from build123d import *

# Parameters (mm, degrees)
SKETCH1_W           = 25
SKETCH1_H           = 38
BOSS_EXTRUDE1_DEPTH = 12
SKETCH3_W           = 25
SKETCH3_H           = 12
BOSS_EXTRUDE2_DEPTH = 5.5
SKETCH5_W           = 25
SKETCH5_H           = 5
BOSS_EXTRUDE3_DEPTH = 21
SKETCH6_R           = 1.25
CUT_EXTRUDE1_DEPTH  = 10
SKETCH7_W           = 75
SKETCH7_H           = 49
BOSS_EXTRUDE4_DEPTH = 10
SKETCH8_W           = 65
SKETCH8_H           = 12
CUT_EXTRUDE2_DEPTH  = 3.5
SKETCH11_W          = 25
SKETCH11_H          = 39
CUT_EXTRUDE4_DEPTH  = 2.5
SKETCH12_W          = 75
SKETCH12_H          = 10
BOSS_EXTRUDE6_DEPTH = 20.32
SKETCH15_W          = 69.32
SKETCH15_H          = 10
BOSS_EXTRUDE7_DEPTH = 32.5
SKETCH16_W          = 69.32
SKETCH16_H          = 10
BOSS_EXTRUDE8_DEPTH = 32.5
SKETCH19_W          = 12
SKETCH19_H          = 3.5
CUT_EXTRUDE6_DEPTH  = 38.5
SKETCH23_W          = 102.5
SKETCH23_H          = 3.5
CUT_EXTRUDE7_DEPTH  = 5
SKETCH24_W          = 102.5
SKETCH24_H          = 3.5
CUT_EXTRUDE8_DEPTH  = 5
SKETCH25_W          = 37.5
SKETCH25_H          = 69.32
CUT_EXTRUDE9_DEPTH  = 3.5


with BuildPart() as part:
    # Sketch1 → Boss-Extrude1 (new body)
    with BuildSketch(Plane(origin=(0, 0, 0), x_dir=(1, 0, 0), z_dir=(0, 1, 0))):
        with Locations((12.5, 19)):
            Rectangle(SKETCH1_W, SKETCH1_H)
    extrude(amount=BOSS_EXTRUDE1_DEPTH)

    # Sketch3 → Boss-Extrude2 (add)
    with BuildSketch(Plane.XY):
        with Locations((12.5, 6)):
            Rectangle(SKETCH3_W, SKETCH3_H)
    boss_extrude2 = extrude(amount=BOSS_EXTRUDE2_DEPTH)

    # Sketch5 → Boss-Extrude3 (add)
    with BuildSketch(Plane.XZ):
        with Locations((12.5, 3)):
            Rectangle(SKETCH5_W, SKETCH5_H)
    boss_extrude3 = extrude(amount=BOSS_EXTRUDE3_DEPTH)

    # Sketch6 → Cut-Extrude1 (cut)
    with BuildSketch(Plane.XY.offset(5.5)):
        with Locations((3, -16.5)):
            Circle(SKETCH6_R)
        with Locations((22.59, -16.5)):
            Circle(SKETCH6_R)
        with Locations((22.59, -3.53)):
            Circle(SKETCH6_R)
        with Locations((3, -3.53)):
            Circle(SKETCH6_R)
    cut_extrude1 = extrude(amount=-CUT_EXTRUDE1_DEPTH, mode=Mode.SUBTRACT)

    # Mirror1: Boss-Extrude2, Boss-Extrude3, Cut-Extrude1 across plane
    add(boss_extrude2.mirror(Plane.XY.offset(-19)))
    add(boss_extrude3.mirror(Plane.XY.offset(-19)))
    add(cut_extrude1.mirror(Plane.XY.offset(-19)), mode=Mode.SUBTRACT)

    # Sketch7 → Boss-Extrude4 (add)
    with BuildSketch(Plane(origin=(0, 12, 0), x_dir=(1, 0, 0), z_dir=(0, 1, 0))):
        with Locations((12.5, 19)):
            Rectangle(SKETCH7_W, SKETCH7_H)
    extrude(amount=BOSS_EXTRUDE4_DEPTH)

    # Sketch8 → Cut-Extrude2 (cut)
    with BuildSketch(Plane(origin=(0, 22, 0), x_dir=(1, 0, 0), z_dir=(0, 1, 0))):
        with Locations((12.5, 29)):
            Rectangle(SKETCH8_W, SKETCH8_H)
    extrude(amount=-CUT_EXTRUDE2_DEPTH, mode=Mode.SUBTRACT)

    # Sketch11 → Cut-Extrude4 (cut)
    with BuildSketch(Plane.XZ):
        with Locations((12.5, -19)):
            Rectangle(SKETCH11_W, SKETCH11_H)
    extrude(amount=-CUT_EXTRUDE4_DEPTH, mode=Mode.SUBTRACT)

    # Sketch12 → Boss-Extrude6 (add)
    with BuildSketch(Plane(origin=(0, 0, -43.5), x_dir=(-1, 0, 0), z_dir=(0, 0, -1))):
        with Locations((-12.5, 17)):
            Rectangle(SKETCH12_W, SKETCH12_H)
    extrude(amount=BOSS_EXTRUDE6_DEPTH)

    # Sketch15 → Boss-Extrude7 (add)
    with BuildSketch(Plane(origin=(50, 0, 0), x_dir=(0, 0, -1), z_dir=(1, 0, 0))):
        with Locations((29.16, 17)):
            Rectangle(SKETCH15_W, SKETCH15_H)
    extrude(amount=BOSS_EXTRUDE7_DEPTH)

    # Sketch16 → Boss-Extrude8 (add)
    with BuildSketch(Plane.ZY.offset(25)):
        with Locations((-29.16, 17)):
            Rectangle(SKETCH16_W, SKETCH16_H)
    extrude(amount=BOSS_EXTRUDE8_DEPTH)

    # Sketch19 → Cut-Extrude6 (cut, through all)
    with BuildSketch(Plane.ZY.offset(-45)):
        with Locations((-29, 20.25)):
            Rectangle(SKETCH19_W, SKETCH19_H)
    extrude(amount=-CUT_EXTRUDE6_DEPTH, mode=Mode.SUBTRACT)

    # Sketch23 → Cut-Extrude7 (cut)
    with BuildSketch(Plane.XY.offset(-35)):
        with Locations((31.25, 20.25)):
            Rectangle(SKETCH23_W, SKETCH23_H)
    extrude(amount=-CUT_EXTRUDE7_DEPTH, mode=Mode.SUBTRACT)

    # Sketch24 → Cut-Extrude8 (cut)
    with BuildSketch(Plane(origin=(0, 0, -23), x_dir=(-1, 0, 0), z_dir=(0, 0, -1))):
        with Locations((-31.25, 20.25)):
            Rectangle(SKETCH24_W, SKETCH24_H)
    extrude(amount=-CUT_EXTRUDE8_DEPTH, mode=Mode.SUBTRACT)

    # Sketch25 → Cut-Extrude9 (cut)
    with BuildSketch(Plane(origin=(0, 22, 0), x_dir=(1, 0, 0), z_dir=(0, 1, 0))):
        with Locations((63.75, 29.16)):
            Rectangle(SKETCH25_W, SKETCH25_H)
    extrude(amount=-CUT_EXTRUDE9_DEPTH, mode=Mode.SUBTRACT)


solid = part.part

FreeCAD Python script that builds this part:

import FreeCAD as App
import Part
import Sketcher
Q = App.Units.Quantity


def add_polygon(sketch, points):
    """Adds a closed chain of lines whose ends are joined by coincident constraints."""
    first, n = sketch.GeometryCount, len(points)
    for a, b in zip(points, points[1:] + points[:1]):
        sketch.addGeometry(Part.LineSegment(App.Vector(*a, 0), App.Vector(*b, 0)), False)
    for i in range(n):
        sketch.addConstraint(Sketcher.Constraint("Coincident", first + i, 2, first + (i + 1) % n, 1))

doc = App.newDocument("Part")
body = doc.addObject("PartDesign::Body", "Body")

sketch1 = doc.addObject("Sketcher::SketchObject", "Sketch")
body.addObject(sketch1)
sketch1.AttachmentSupport = (doc.XZ_Plane, [""])
sketch1.MapMode = "FlatFace"
add_polygon(sketch1, [(0, -38), (0, 0), (25, 0), (25, -38)])
sketch1.addConstraint(Sketcher.Constraint("Vertical", 0))
sketch1.addConstraint(Sketcher.Constraint("Horizontal", 1))
sketch1.addConstraint(Sketcher.Constraint("Vertical", 2))
sketch1.addConstraint(Sketcher.Constraint("Horizontal", 3))
sketch1.addConstraint(Sketcher.Constraint("Coincident", 0, 2, -1, 1))
sketch1.addConstraint(Sketcher.Constraint("DistanceX", 1, 1, 1, 2, Q("25 mm")))
sketch1.addConstraint(Sketcher.Constraint("DistanceY", 0, 1, 0, 2, Q("38 mm")))
pad1 = doc.addObject("PartDesign::Pad", "Pad")
body.addObject(pad1)
pad1.Profile = sketch1
pad1.Length = 12
pad1.Reversed = True

sketch2 = doc.addObject("Sketcher::SketchObject", "Sketch001")
body.addObject(sketch2)
sketch2.AttachmentSupport = (doc.XY_Plane, [""])
sketch2.MapMode = "FlatFace"
add_polygon(sketch2, [(0, 12), (0, 0), (25, 0), (25, 12)])
sketch2.addConstraint(Sketcher.Constraint("Vertical", 0))
sketch2.addConstraint(Sketcher.Constraint("Horizontal", 1))
sketch2.addConstraint(Sketcher.Constraint("Vertical", 2))
sketch2.addConstraint(Sketcher.Constraint("Horizontal", 3))
sketch2.addConstraint(Sketcher.Constraint("Coincident", 0, 2, -1, 1))
sketch2.addConstraint(Sketcher.Constraint("DistanceX", 1, 1, 1, 2, Q("25 mm")))
sketch2.addConstraint(Sketcher.Constraint("DistanceY", 0, 2, 0, 1, Q("12 mm")))
pad2 = doc.addObject("PartDesign::Pad", "Pad001")
body.addObject(pad2)
pad2.Profile = sketch2
pad2.Length = 5.5

sketch3 = doc.addObject("Sketcher::SketchObject", "Sketch002")
body.addObject(sketch3)
sketch3.AttachmentSupport = (doc.XZ_Plane, [""])
sketch3.MapMode = "FlatFace"
add_polygon(sketch3, [(0, 6), (0, 0), (25, 0), (25, 6)])
sketch3.addConstraint(Sketcher.Constraint("Vertical", 0))
sketch3.addConstraint(Sketcher.Constraint("Horizontal", 1))
sketch3.addConstraint(Sketcher.Constraint("Vertical", 2))
sketch3.addConstraint(Sketcher.Constraint("Horizontal", 3))
sketch3.addConstraint(Sketcher.Constraint("PointOnObject", 0, 2, -2))
sketch3.addConstraint(Sketcher.Constraint("DistanceX", 1, 1, 1, 2, Q("25 mm")))
sketch3.addConstraint(Sketcher.Constraint("DistanceY", 0, 2, 0, 1, Q("5 mm")))
sketch3.addConstraint(Sketcher.Constraint("DistanceY", -1, 1, 0, 2, Q("0.5 mm")))
pad3 = doc.addObject("PartDesign::Pad", "Pad002")
body.addObject(pad3)
pad3.Profile = sketch3
pad3.Length = 21

sketch4 = doc.addObject("Sketcher::SketchObject", "Sketch003")
body.addObject(sketch4)
sketch4.AttachmentSupport = (doc.XY_Plane, [""])
sketch4.MapMode = "FlatFace"
sketch4.AttachmentOffset = App.Placement(App.Vector(0, 0, 5.5), App.Rotation())
sketch4.addGeometry(Part.Circle(App.Vector(3, -16.5, 0), App.Vector(0, 0, 1), 1.2), False)
sketch4.addGeometry(Part.Circle(App.Vector(22.6, -16.5, 0), App.Vector(0, 0, 1), 1.2), False)
sketch4.addGeometry(Part.Circle(App.Vector(22.6, -3.5, 0), App.Vector(0, 0, 1), 1.2), False)
sketch4.addGeometry(Part.Circle(App.Vector(3, -3.5, 0), App.Vector(0, 0, 1), 1.2), False)
sketch4.addConstraint(Sketcher.Constraint("Equal", 0, 1))
sketch4.addConstraint(Sketcher.Constraint("Equal", 1, 2))
sketch4.addConstraint(Sketcher.Constraint("Equal", 2, 3))
sketch4.addConstraint(Sketcher.Constraint("Horizontal", 0, 3, 1, 3))
sketch4.addConstraint(Sketcher.Constraint("Horizontal", 2, 3, 3, 3))
sketch4.addConstraint(Sketcher.Constraint("Vertical", 1, 3, 2, 3))
sketch4.addConstraint(Sketcher.Constraint("Vertical", 0, 3, 3, 3))
sketch4.addConstraint(Sketcher.Constraint("Diameter", 0, Q("2.5 mm")))
sketch4.addConstraint(Sketcher.Constraint("DistanceX", -1, 1, 0, 3, Q("3 mm")))
sketch4.addConstraint(Sketcher.Constraint("DistanceY", 0, 3, -1, 1, Q("16.5 mm")))
sketch4.addConstraint(Sketcher.Constraint("DistanceX", -1, 1, 1, 3, Q("22.59 mm")))
sketch4.addConstraint(Sketcher.Constraint("DistanceY", 2, 3, -1, 1, Q("3.53 mm")))
pocket1 = doc.addObject("PartDesign::Pocket", "Pocket")
body.addObject(pocket1)
pocket1.Profile = sketch4
pocket1.Length = 10
doc.recompute()

datumplane = doc.addObject("PartDesign::Plane", "DatumPlane")
body.addObject(datumplane)
datumplane.AttachmentSupport = (doc.XY_Plane, [""])
datumplane.MapMode = "FlatFace"
datumplane.AttachmentOffset = App.Placement(App.Vector(0, 0, -19), App.Rotation())
mirrored = doc.addObject("PartDesign::Mirrored", "Mirrored")
body.addObject(mirrored)
mirrored.Originals = [pad2, pad3, pocket1]
mirrored.MirrorPlane = (datumplane, [""])
body.Tip = mirrored

sketch5 = doc.addObject("Sketcher::SketchObject", "Sketch004")
body.addObject(sketch5)
sketch5.AttachmentSupport = (doc.XZ_Plane, [""])
sketch5.MapMode = "FlatFace"
sketch5.AttachmentOffset = App.Placement(App.Vector(0, 0, -12), App.Rotation())
add_polygon(sketch5, [(-25, -44), (-25, 6), (50, 6), (50, -44)])
sketch5.addConstraint(Sketcher.Constraint("Vertical", 0))
sketch5.addConstraint(Sketcher.Constraint("Horizontal", 1))
sketch5.addConstraint(Sketcher.Constraint("Vertical", 2))
sketch5.addConstraint(Sketcher.Constraint("Horizontal", 3))
sketch5.addConstraint(Sketcher.Constraint("DistanceX", 1, 1, 1, 2, Q("75 mm")))
sketch5.addConstraint(Sketcher.Constraint("DistanceY", 0, 1, 0, 2, Q("49 mm")))
sketch5.addConstraint(Sketcher.Constraint("DistanceX", 0, 2, -1, 1, Q("25 mm")))
sketch5.addConstraint(Sketcher.Constraint("DistanceY", -1, 1, 0, 2, Q("5.5 mm")))
pad4 = doc.addObject("PartDesign::Pad", "Pad003")
body.addObject(pad4)
pad4.Profile = sketch5
pad4.Length = 10
pad4.Reversed = True

sketch6 = doc.addObject("Sketcher::SketchObject", "Sketch005")
body.addObject(sketch6)
sketch6.AttachmentSupport = (doc.XZ_Plane, [""])
sketch6.MapMode = "FlatFace"
sketch6.AttachmentOffset = App.Placement(App.Vector(0, 0, -22), App.Rotation())
add_polygon(sketch6, [(-20, -35), (-20, -23), (45, -23), (45, -35)])
sketch6.addConstraint(Sketcher.Constraint("Vertical", 0))
sketch6.addConstraint(Sketcher.Constraint("Horizontal", 1))
sketch6.addConstraint(Sketcher.Constraint("Vertical", 2))
sketch6.addConstraint(Sketcher.Constraint("Horizontal", 3))
sketch6.addConstraint(Sketcher.Constraint("DistanceX", 1, 1, 1, 2, Q("65 mm")))
sketch6.addConstraint(Sketcher.Constraint("DistanceY", 0, 1, 0, 2, Q("12 mm")))
sketch6.addConstraint(Sketcher.Constraint("DistanceX", 0, 2, -1, 1, Q("20 mm")))
sketch6.addConstraint(Sketcher.Constraint("DistanceY", 0, 2, -1, 1, Q("23 mm")))
pocket2 = doc.addObject("PartDesign::Pocket", "Pocket001")
body.addObject(pocket2)
pocket2.Profile = sketch6
pocket2.Length = 3.5
pocket2.Reversed = True

sketch7 = doc.addObject("Sketcher::SketchObject", "Sketch006")
body.addObject(sketch7)
sketch7.AttachmentSupport = (doc.XZ_Plane, [""])
sketch7.MapMode = "FlatFace"
add_polygon(sketch7, [(0, 0), (0, -38), (25, -38), (25, 0)])
sketch7.addConstraint(Sketcher.Constraint("Vertical", 0))
sketch7.addConstraint(Sketcher.Constraint("Horizontal", 1))
sketch7.addConstraint(Sketcher.Constraint("Vertical", 2))
sketch7.addConstraint(Sketcher.Constraint("Horizontal", 3))
sketch7.addConstraint(Sketcher.Constraint("PointOnObject", 0, 2, -2))
sketch7.addConstraint(Sketcher.Constraint("DistanceX", 1, 1, 1, 2, Q("25 mm")))
sketch7.addConstraint(Sketcher.Constraint("DistanceY", 0, 2, 0, 1, Q("39 mm")))
sketch7.addConstraint(Sketcher.Constraint("DistanceY", 0, 2, -1, 1, Q("38.5 mm")))
pocket3 = doc.addObject("PartDesign::Pocket", "Pocket002")
body.addObject(pocket3)
pocket3.Profile = sketch7
pocket3.Length = 2.5

sketch8 = doc.addObject("Sketcher::SketchObject", "Sketch007")
body.addObject(sketch8)
sketch8.AttachmentSupport = (doc.XY_Plane, [""])
sketch8.MapMode = "FlatFace"
sketch8.AttachmentOffset = App.Placement(App.Vector(0, 0, -43.5), App.Rotation())
add_polygon(sketch8, [(50, 22), (50, 12), (-25, 12), (-25, 22)])
sketch8.addConstraint(Sketcher.Constraint("Vertical", 0))
sketch8.addConstraint(Sketcher.Constraint("Horizontal", 1))
sketch8.addConstraint(Sketcher.Constraint("Vertical", 2))
sketch8.addConstraint(Sketcher.Constraint("Horizontal", 3))
sketch8.addConstraint(Sketcher.Constraint("DistanceX", 1, 2, 1, 1, Q("75 mm")))
sketch8.addConstraint(Sketcher.Constraint("DistanceY", 0, 2, 0, 1, Q("10 mm")))
sketch8.addConstraint(Sketcher.Constraint("DistanceX", -1, 1, 0, 2, Q("50 mm")))
sketch8.addConstraint(Sketcher.Constraint("DistanceY", -1, 1, 0, 2, Q("12 mm")))
pad5 = doc.addObject("PartDesign::Pad", "Pad004")
body.addObject(pad5)
pad5.Profile = sketch8
pad5.Length = 20.32
pad5.Reversed = True

sketch9 = doc.addObject("Sketcher::SketchObject", "Sketch008")
body.addObject(sketch9)
sketch9.AttachmentSupport = (doc.YZ_Plane, [""])
sketch9.MapMode = "FlatFace"
sketch9.AttachmentOffset = App.Placement(App.Vector(0, 0, 50), App.Rotation())
add_polygon(sketch9, [(22, 6), (12, 6), (12, -64), (22, -64)])
sketch9.addConstraint(Sketcher.Constraint("Horizontal", 0))
sketch9.addConstraint(Sketcher.Constraint("Vertical", 1))
sketch9.addConstraint(Sketcher.Constraint("Horizontal", 2))
sketch9.addConstraint(Sketcher.Constraint("Vertical", 3))
sketch9.addConstraint(Sketcher.Constraint("DistanceX", 0, 2, 0, 1, Q("10 mm")))
sketch9.addConstraint(Sketcher.Constraint("DistanceX", -1, 1, 0, 2, Q("12 mm")))
sketch9.addConstraint(Sketcher.Constraint("DistanceY", 1, 2, 1, 1, Q("69.32 mm")))
sketch9.addConstraint(Sketcher.Constraint("DistanceY", -1, 1, 0, 2, Q("5.5 mm")))
pad6 = doc.addObject("PartDesign::Pad", "Pad005")
body.addObject(pad6)
pad6.Profile = sketch9
pad6.Length = 32.5

sketch10 = doc.addObject("Sketcher::SketchObject", "Sketch009")
body.addObject(sketch10)
sketch10.AttachmentSupport = (doc.YZ_Plane, [""])
sketch10.MapMode = "FlatFace"
sketch10.AttachmentOffset = App.Placement(App.Vector(0, 0, -25), App.Rotation())
add_polygon(sketch10, [(22, -64), (12, -64), (12, 6), (22, 6)])
sketch10.addConstraint(Sketcher.Constraint("Horizontal", 0))
sketch10.addConstraint(Sketcher.Constraint("Vertical", 1))
sketch10.addConstraint(Sketcher.Constraint("Horizontal", 2))
sketch10.addConstraint(Sketcher.Constraint("Vertical", 3))
sketch10.addConstraint(Sketcher.Constraint("DistanceX", 0, 2, 0, 1, Q("10 mm")))
sketch10.addConstraint(Sketcher.Constraint("DistanceX", -1, 1, 0, 2, Q("12 mm")))
sketch10.addConstraint(Sketcher.Constraint("DistanceY", 1, 1, 1, 2, Q("69.32 mm")))
sketch10.addConstraint(Sketcher.Constraint("DistanceY", -1, 1, 1, 2, Q("5.5 mm")))
pad7 = doc.addObject("PartDesign::Pad", "Pad006")
body.addObject(pad7)
pad7.Profile = sketch10
pad7.Length = 32.5
pad7.Reversed = True

sketch11 = doc.addObject("Sketcher::SketchObject", "Sketch010")
body.addObject(sketch11)
sketch11.AttachmentSupport = (doc.YZ_Plane, [""])
sketch11.MapMode = "FlatFace"
sketch11.AttachmentOffset = App.Placement(App.Vector(0, 0, 45), App.Rotation())
add_polygon(sketch11, [(22, -35), (18.5, -35), (18.5, -23), (22, -23)])
sketch11.addConstraint(Sketcher.Constraint("Horizontal", 0))
sketch11.addConstraint(Sketcher.Constraint("Vertical", 1))
sketch11.addConstraint(Sketcher.Constraint("Horizontal", 2))
sketch11.addConstraint(Sketcher.Constraint("Vertical", 3))
sketch11.addConstraint(Sketcher.Constraint("DistanceY", 1, 1, 1, 2, Q("12 mm")))
sketch11.addConstraint(Sketcher.Constraint("DistanceX", 0, 2, 0, 1, Q("3.5 mm")))
sketch11.addConstraint(Sketcher.Constraint("DistanceY", 0, 2, -1, 1, Q("35 mm")))
sketch11.addConstraint(Sketcher.Constraint("DistanceX", -1, 1, 2, 2, Q("22 mm")))
pocket4 = doc.addObject("PartDesign::Pocket", "Pocket003")
body.addObject(pocket4)
pocket4.Profile = sketch11
pocket4.Type = "ThroughAll"
pocket4.Reversed = True

sketch12 = doc.addObject("Sketcher::SketchObject", "Sketch011")
body.addObject(sketch12)
sketch12.AttachmentSupport = (doc.XY_Plane, [""])
sketch12.MapMode = "FlatFace"
sketch12.AttachmentOffset = App.Placement(App.Vector(0, 0, -35), App.Rotation())
add_polygon(sketch12, [(-20, 22), (-20, 18.5), (82.5, 18.5), (82.5, 22)])
sketch12.addConstraint(Sketcher.Constraint("Vertical", 0))
sketch12.addConstraint(Sketcher.Constraint("Horizontal", 1))
sketch12.addConstraint(Sketcher.Constraint("Vertical", 2))
sketch12.addConstraint(Sketcher.Constraint("Horizontal", 3))
sketch12.addConstraint(Sketcher.Constraint("DistanceX", 1, 1, 1, 2, Q("102.5 mm")))
sketch12.addConstraint(Sketcher.Constraint("DistanceY", 0, 2, 0, 1, Q("3.5 mm")))
sketch12.addConstraint(Sketcher.Constraint("DistanceX", 0, 2, -1, 1, Q("20 mm")))
sketch12.addConstraint(Sketcher.Constraint("DistanceY", -1, 1, 2, 2, Q("22 mm")))
pocket5 = doc.addObject("PartDesign::Pocket", "Pocket004")
body.addObject(pocket5)
pocket5.Profile = sketch12
pocket5.Length = 5

sketch13 = doc.addObject("Sketcher::SketchObject", "Sketch012")
body.addObject(sketch13)
sketch13.AttachmentSupport = (doc.XY_Plane, [""])
sketch13.MapMode = "FlatFace"
sketch13.AttachmentOffset = App.Placement(App.Vector(0, 0, -23), App.Rotation())
add_polygon(sketch13, [(82.5, 22), (82.5, 18.5), (-20, 18.5), (-20, 22)])
sketch13.addConstraint(Sketcher.Constraint("Vertical", 0))
sketch13.addConstraint(Sketcher.Constraint("Horizontal", 1))
sketch13.addConstraint(Sketcher.Constraint("Vertical", 2))
sketch13.addConstraint(Sketcher.Constraint("Horizontal", 3))
sketch13.addConstraint(Sketcher.Constraint("DistanceX", 1, 2, 1, 1, Q("102.5 mm")))
sketch13.addConstraint(Sketcher.Constraint("DistanceY", 0, 2, 0, 1, Q("3.5 mm")))
sketch13.addConstraint(Sketcher.Constraint("DistanceX", 1, 2, -1, 1, Q("20 mm")))
sketch13.addConstraint(Sketcher.Constraint("DistanceY", -1, 1, 2, 2, Q("22 mm")))
pocket6 = doc.addObject("PartDesign::Pocket", "Pocket005")
body.addObject(pocket6)
pocket6.Profile = sketch13
pocket6.Length = 5
pocket6.Reversed = True

sketch14 = doc.addObject("Sketcher::SketchObject", "Sketch013")
body.addObject(sketch14)
sketch14.AttachmentSupport = (doc.XZ_Plane, [""])
sketch14.MapMode = "FlatFace"
sketch14.AttachmentOffset = App.Placement(App.Vector(0, 0, -22), App.Rotation())
add_polygon(sketch14, [(45, -64), (45, 6), (82, 6), (82, -64)])
sketch14.addConstraint(Sketcher.Constraint("Vertical", 0))
sketch14.addConstraint(Sketcher.Constraint("Horizontal", 1))
sketch14.addConstraint(Sketcher.Constraint("Vertical", 2))
sketch14.addConstraint(Sketcher.Constraint("Horizontal", 3))
sketch14.addConstraint(Sketcher.Constraint("DistanceX", 1, 1, 1, 2, Q("37.5 mm")))
sketch14.addConstraint(Sketcher.Constraint("DistanceX", -1, 1, 0, 2, Q("45 mm")))
sketch14.addConstraint(Sketcher.Constraint("DistanceY", 0, 1, 0, 2, Q("69.32 mm")))
sketch14.addConstraint(Sketcher.Constraint("DistanceY", -1, 1, 0, 2, Q("5.5 mm")))
pocket7 = doc.addObject("PartDesign::Pocket", "Pocket006")
body.addObject(pocket7)
pocket7.Profile = sketch14
pocket7.Length = 3.5
pocket7.Reversed = True

doc.recompute()
